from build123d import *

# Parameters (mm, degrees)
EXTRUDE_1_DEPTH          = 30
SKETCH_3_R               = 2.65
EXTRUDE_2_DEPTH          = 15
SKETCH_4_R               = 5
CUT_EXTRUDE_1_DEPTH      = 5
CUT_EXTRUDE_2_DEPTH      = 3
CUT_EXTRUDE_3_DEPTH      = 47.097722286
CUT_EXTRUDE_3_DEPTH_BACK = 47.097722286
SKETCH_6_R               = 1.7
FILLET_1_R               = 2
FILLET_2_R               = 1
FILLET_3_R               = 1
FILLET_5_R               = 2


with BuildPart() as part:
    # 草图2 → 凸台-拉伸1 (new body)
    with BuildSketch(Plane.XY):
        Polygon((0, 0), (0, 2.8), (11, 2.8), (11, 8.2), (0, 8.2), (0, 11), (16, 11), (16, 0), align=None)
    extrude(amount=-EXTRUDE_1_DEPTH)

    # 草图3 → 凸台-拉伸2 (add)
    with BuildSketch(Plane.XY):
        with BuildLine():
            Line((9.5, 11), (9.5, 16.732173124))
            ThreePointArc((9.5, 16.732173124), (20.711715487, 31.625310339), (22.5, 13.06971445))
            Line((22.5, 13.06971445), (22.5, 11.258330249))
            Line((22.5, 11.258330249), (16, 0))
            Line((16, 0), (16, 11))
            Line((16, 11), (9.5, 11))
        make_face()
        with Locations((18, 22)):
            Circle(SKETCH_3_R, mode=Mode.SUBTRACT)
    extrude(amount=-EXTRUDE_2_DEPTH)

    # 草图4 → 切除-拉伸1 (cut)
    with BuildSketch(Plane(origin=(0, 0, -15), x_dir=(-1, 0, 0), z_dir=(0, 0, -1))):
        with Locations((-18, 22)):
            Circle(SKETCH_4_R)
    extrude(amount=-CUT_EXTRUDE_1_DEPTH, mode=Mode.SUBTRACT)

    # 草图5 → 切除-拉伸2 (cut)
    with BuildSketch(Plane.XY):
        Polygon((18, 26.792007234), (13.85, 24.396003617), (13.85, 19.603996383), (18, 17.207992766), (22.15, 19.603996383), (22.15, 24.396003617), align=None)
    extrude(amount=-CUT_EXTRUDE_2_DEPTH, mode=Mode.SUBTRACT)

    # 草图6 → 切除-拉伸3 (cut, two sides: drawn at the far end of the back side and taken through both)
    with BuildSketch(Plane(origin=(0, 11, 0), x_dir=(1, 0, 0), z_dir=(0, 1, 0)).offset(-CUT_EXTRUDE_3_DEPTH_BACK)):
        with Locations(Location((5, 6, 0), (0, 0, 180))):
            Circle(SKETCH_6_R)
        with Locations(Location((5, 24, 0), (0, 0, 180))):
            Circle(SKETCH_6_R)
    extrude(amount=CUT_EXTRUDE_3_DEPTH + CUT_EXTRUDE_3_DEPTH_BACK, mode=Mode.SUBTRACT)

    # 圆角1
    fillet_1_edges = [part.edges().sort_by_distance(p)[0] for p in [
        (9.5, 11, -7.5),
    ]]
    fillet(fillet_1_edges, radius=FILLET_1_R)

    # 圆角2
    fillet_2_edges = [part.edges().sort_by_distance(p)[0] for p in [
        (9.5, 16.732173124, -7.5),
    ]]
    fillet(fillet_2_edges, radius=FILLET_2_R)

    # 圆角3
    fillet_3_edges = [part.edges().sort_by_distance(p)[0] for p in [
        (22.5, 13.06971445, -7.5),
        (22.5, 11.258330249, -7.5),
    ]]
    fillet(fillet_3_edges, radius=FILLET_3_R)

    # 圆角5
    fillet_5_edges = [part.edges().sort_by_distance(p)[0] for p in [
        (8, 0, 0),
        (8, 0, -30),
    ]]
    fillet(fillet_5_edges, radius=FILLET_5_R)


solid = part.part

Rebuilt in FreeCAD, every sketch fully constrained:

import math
import FreeCAD as App
import Part
import Sketcher
Q = App.Units.Quantity


def edges_at(feature, points):
    """Names of the edges that pass closest to the given points."""
    edges = feature.Shape.Edges
    near = lambda p: min(range(len(edges)), key=lambda i: edges[i].distToShape(Part.Vertex(*p))[0])
    return sorted({f"Edge{near(p) + 1}" for p in points})

doc = App.newDocument("Part")
body = doc.addObject("PartDesign::Body", "Body")

# Sketch on XY plane
sketch1 = body.newObject("Sketcher::SketchObject", "Sketch")
sketch1.AttachmentSupport = (doc.getObject("XY_Plane"), [""])
sketch1.MapMode = "FlatFace"
sketch1.addGeometry(Part.LineSegment(App.Vector(0, 2.8, 0), App.Vector(0, 0, 0)), False)
sketch1.addGeometry(Part.LineSegment(App.Vector(0, 0, 0), App.Vector(16, 0, 0)), False)
sketch1.addGeometry(Part.LineSegment(App.Vector(16, 0, 0), App.Vector(16, 11, 0)), False)
sketch1.addGeometry(Part.LineSegment(App.Vector(16, 11, 0), App.Vector(0, 11, 0)), False)
sketch1.addGeometry(Part.LineSegment(App.Vector(0, 11, 0), App.Vector(0, 8.2, 0)), False)
sketch1.addGeometry(Part.LineSegment(App.Vector(0, 8.2, 0), App.Vector(11, 8.2, 0)), False)
sketch1.addGeometry(Part.LineSegment(App.Vector(11, 8.2, 0), App.Vector(11, 2.8, 0)), False)
sketch1.addGeometry(Part.LineSegment(App.Vector(11, 2.8, 0), App.Vector(0, 2.8, 0)), False)
sketch1.addConstraint(Sketcher.Constraint("Coincident", 0, 2, 1, 1))
sketch1.addConstraint(Sketcher.Constraint("Coincident", 1, 2, 2, 1))
sketch1.addConstraint(Sketcher.Constraint("Coincident", 2, 2, 3, 1))
sketch1.addConstraint(Sketcher.Constraint("Coincident", 3, 2, 4, 1))
sketch1.addConstraint(Sketcher.Constraint("Coincident", 4, 2, 5, 1))
sketch1.addConstraint(Sketcher.Constraint("Coincident", 5, 2, 6, 1))
sketch1.addConstraint(Sketcher.Constraint("Coincident", 6, 2, 7, 1))
sketch1.addConstraint(Sketcher.Constraint("Coincident", 7, 2, 0, 1))
sketch1.addConstraint(Sketcher.Constraint("Vertical", 0))
sketch1.addConstraint(Sketcher.Constraint("Horizontal", 1))
sketch1.addConstraint(Sketcher.Constraint("Vertical", 2))
sketch1.addConstraint(Sketcher.Constraint("Horizontal", 3))
sketch1.addConstraint(Sketcher.Constraint("Vertical", 4))
sketch1.addConstraint(Sketcher.Constraint("Horizontal", 5))
sketch1.addConstraint(Sketcher.Constraint("Vertical", 6))
sketch1.addConstraint(Sketcher.Constraint("Horizontal", 7))
sketch1.addConstraint(Sketcher.Constraint("Coincident", 0, 2, -1, 1))
sketch1.addConstraint(Sketcher.Constraint("PointOnObject", 3, 2, -2))
sketch1.addConstraint(Sketcher.Constraint("Equal", 7, 2))
sketch1.addConstraint(Sketcher.Constraint("Equal", 0, 4))
sketch1.addConstraint(Sketcher.Constraint("DistanceX", 1, 1, 1, 2, Q("16 mm")))
sketch1.addConstraint(Sketcher.Constraint("DistanceX", 5, 1, 5, 2, Q("11 mm")))
sketch1.addConstraint(Sketcher.Constraint("DistanceY", 0, 2, 0, 1, Q("2.8 mm")))
pad1 = body.newObject("PartDesign::Pad", "Pad")
pad1.Profile = sketch1
pad1.Length = 30
pad1.Reversed = True

# Sketch on XY plane
sketch2 = body.newObject("Sketcher::SketchObject", "Sketch001")
sketch2.AttachmentSupport = (doc.getObject("XY_Plane"), [""])
sketch2.MapMode = "FlatFace"
sketch2.addGeometry(Part.LineSegment(App.Vector(9.5, 16.7, 0), App.Vector(9.5, 11, 0)), False)
sketch2.addGeometry(Part.LineSegment(App.Vector(9.5, 11, 0), App.Vector(16, 11, 0)), False)
sketch2.addGeometry(Part.LineSegment(App.Vector(16, 11, 0), App.Vector(16, 0, 0)), False)
sketch2.addGeometry(Part.LineSegment(App.Vector(16, 0, 0), App.Vector(22.5, 11.3, 0)), False)
sketch2.addGeometry(Part.LineSegment(App.Vector(22.5, 11.3, 0), App.Vector(22.5, 13.1, 0)), False)
sketch2.addGeometry(Part.ArcOfCircle(Part.Circle(App.Vector(18, 22, 0), App.Vector(0, 0, 1), 10), math.radians(-63), math.radians(212)), False)
sketch2.addGeometry(Part.Circle(App.Vector(18, 22, 0), App.Vector(0, 0, 1), 2.6), False)
sketch2.addConstraint(Sketcher.Constraint("Coincident", 0, 2, 1, 1))
sketch2.addConstraint(Sketcher.Constraint("Coincident", 1, 2, 2, 1))
sketch2.addConstraint(Sketcher.Constraint("Coincident", 2, 2, 3, 1))
sketch2.addConstraint(Sketcher.Constraint("Coincident", 3, 2, 4, 1))
sketch2.addConstraint(Sketcher.Constraint("Coincident", 4, 2, 5, 1))
sketch2.addConstraint(Sketcher.Constraint("Coincident", 5, 2, 0, 1))
sketch2.addConstraint(Sketcher.Constraint("Vertical", 0))
sketch2.addConstraint(Sketcher.Constraint("Horizontal", 1))
sketch2.addConstraint(Sketcher.Constraint("Vertical", 2))
sketch2.addConstraint(Sketcher.Constraint("Vertical", 4))
sketch2.addConstraint(Sketcher.Constraint("Coincident", 6, 3, 5, 3))
sketch2.addConstraint(Sketcher.Constraint("PointOnObject", 2, 2, -1))
sketch2.addConstraint(Sketcher.Constraint("Radius", 5, Q("10 mm")))
sketch2.addConstraint(Sketcher.Constraint("Diameter", 6, Q("5.3 mm")))
sketch2.addConstraint(Sketcher.Constraint("DistanceY", 2, 2, 2, 1, Q("11 mm")))
sketch2.addConstraint(Sketcher.Constraint("Angle", 3, Q("60 deg")))
sketch2.addConstraint(Sketcher.Constraint("Distance", 3, Q("13 mm")))
sketch2.addConstraint(Sketcher.Constraint("DistanceX", 1, 1, 1, 2, Q("6.5 mm")))
sketch2.addConstraint(Sketcher.Constraint("DistanceX", -1, 1, 5, 3, Q("18 mm")))
sketch2.addConstraint(Sketcher.Constraint("DistanceY", -1, 1, 5, 3, Q("22 mm")))
sketch2.addConstraint(Sketcher.Constraint("DistanceX", -1, 1, 1, 2, Q("16 mm")))
pad2 = body.newObject("PartDesign::Pad", "Pad001")
pad2.Profile = sketch2
pad2.Length = 15
pad2.Reversed = True

# Sketch on XY plane
sketch3 = body.newObject("Sketcher::SketchObject", "Sketch002")
sketch3.AttachmentSupport = (doc.getObject("XY_Plane"), [""])
sketch3.MapMode = "FlatFace"
sketch3.AttachmentOffset = App.Placement(App.Vector(0, 0, -15), App.Rotation())
sketch3.addGeometry(Part.Circle(App.Vector(18, 22, 0), App.Vector(0, 0, 1), 5), False)
sketch3.addConstraint(Sketcher.Constraint("Diameter", 0, Q("10 mm")))
sketch3.addConstraint(Sketcher.Constraint("DistanceX", -1, 1, 0, 3, Q("18 mm")))
sketch3.addConstraint(Sketcher.Constraint("DistanceY", -1, 1, 0, 3, Q("22 mm")))
pocket1 = body.newObject("PartDesign::Pocket", "Pocket")
pocket1.Profile = sketch3
pocket1.Length = 5
pocket1.Reversed = True

# Sketch on XY plane
sketch4 = body.newObject("Sketcher::SketchObject", "Sketch003")
sketch4.AttachmentSupport = (doc.getObject("XY_Plane"), [""])
sketch4.MapMode = "FlatFace"
sketch4.addGeometry(Part.LineSegment(App.Vector(18, 26.8, 0), App.Vector(13.8, 24.4, 0)), False)
sketch4.addGeometry(Part.LineSegment(App.Vector(13.8, 24.4, 0), App.Vector(13.8, 19.6, 0)), False)
sketch4.addGeometry(Part.LineSegment(App.Vector(13.8, 19.6, 0), App.Vector(18, 17.2, 0)), False)
sketch4.addGeometry(Part.LineSegment(App.Vector(18, 17.2, 0), App.Vector(22.1, 19.6, 0)), False)
sketch4.addGeometry(Part.LineSegment(App.Vector(22.1, 19.6, 0), App.Vector(22.1, 24.4, 0)), False)
sketch4.addGeometry(Part.LineSegment(App.Vector(22.1, 24.4, 0), App.Vector(18, 26.8, 0)), False)
sketch4.addConstraint(Sketcher.Constraint("Coincident", 0, 2, 1, 1))
sketch4.addConstraint(Sketcher.Constraint("Coincident", 1, 2, 2, 1))
sketch4.addConstraint(Sketcher.Constraint("Coincident", 2, 2, 3, 1))
sketch4.addConstraint(Sketcher.Constraint("Coincident", 3, 2, 4, 1))
sketch4.addConstraint(Sketcher.Constraint("Coincident", 4, 2, 5, 1))
sketch4.addConstraint(Sketcher.Constraint("Coincident", 5, 2, 0, 1))
sketch4.addConstraint(Sketcher.Constraint("Vertical", 1))
sketch4.addConstraint(Sketcher.Constraint("Vertical", 4))
sketch4.addConstraint(Sketcher.Constraint("Parallel", 0, 3))
sketch4.addConstraint(Sketcher.Constraint("Parallel", 2, 5))
sketch4.addConstraint(Sketcher.Constraint("Horizontal", 1, 2, 3, 2))
sketch4.addConstraint(Sketcher.Constraint("Horizontal", 0, 2, 4, 2))
sketch4.addConstraint(Sketcher.Constraint("Vertical", 2, 2, 5, 2))
sketch4.addConstraint(Sketcher.Constraint("Angle", 0, Q("-150 deg")))
sketch4.addConstraint(Sketcher.Constraint("DistanceX", -1, 1, 2, 2, Q("18 mm")))
sketch4.addConstraint(Sketcher.Constraint("DistanceX", 1, 2, 3, 2, Q("8.3 mm")))
sketch4.addConstraint(Sketcher.Constraint("DistanceY", 1, 2, 1, 1, Q("4.792007 mm")))
sketch4.addConstraint(Sketcher.Constraint("DistanceY", -1, 1, 0, 2, Q("24.396004 mm")))
pocket2 = body.newObject("PartDesign::Pocket", "Pocket001")
pocket2.Profile = sketch4
pocket2.Length = 3

# Sketch on XZ plane
sketch5 = body.newObject("Sketcher::SketchObject", "Sketch004")
sketch5.AttachmentSupport = (doc.getObject("XZ_Plane"), [""])
sketch5.MapMode = "FlatFace"
sketch5.AttachmentOffset = App.Placement(App.Vector(0, 0, -11), App.Rotation())
sketch5.addGeometry(Part.Circle(App.Vector(5, -6, 0), App.Vector(0, 0, 1), 1.7), False)
sketch5.addGeometry(Part.Circle(App.Vector(5, -24, 0), App.Vector(0, 0, 1), 1.7), False)
sketch5.addConstraint(Sketcher.Constraint("Equal", 0, 1))
sketch5.addConstraint(Sketcher.Constraint("Vertical", 0, 3, 1, 3))
sketch5.addConstraint(Sketcher.Constraint("Diameter", 0, Q("3.4 mm")))
sketch5.addConstraint(Sketcher.Constraint("DistanceX", -1, 1, 0, 3, Q("5 mm")))
sketch5.addConstraint(Sketcher.Constraint("DistanceY", 0, 3, -1, 1, Q("6 mm")))
sketch5.addConstraint(Sketcher.Constraint("DistanceY", 1, 3, -1, 1, Q("24 mm")))
pocket3 = body.newObject("PartDesign::Pocket", "Pocket002")
pocket3.Profile = sketch5
pocket3.Type = "ThroughAll"
pocket3.Midplane = True
doc.recompute()

fillet = body.newObject("PartDesign::Fillet", "Fillet")
fillet.Base = (pocket3, edges_at(pocket3, [(9.5, 11, -7.5)]))
fillet.Radius = 2
doc.recompute()

fillet2 = body.newObject("PartDesign::Fillet", "Fillet001")
fillet2.Base = (fillet, edges_at(fillet, [(9.5, 16.732, -7.5)]))
fillet2.Radius = 1
doc.recompute()

fillet3 = body.newObject("PartDesign::Fillet", "Fillet002")
fillet3.Base = (fillet2, edges_at(fillet2, [(22.5, 13.07, -7.5), (22.5, 11.258, -7.5)]))
fillet3.Radius = 1
doc.recompute()

fillet4 = body.newObject("PartDesign::Fillet", "Fillet003")
fillet4.Base = (fillet3, edges_at(fillet3, [(8, 0, 0), (8, 0, -30)]))
fillet4.Radius = 2

doc.recompute()
